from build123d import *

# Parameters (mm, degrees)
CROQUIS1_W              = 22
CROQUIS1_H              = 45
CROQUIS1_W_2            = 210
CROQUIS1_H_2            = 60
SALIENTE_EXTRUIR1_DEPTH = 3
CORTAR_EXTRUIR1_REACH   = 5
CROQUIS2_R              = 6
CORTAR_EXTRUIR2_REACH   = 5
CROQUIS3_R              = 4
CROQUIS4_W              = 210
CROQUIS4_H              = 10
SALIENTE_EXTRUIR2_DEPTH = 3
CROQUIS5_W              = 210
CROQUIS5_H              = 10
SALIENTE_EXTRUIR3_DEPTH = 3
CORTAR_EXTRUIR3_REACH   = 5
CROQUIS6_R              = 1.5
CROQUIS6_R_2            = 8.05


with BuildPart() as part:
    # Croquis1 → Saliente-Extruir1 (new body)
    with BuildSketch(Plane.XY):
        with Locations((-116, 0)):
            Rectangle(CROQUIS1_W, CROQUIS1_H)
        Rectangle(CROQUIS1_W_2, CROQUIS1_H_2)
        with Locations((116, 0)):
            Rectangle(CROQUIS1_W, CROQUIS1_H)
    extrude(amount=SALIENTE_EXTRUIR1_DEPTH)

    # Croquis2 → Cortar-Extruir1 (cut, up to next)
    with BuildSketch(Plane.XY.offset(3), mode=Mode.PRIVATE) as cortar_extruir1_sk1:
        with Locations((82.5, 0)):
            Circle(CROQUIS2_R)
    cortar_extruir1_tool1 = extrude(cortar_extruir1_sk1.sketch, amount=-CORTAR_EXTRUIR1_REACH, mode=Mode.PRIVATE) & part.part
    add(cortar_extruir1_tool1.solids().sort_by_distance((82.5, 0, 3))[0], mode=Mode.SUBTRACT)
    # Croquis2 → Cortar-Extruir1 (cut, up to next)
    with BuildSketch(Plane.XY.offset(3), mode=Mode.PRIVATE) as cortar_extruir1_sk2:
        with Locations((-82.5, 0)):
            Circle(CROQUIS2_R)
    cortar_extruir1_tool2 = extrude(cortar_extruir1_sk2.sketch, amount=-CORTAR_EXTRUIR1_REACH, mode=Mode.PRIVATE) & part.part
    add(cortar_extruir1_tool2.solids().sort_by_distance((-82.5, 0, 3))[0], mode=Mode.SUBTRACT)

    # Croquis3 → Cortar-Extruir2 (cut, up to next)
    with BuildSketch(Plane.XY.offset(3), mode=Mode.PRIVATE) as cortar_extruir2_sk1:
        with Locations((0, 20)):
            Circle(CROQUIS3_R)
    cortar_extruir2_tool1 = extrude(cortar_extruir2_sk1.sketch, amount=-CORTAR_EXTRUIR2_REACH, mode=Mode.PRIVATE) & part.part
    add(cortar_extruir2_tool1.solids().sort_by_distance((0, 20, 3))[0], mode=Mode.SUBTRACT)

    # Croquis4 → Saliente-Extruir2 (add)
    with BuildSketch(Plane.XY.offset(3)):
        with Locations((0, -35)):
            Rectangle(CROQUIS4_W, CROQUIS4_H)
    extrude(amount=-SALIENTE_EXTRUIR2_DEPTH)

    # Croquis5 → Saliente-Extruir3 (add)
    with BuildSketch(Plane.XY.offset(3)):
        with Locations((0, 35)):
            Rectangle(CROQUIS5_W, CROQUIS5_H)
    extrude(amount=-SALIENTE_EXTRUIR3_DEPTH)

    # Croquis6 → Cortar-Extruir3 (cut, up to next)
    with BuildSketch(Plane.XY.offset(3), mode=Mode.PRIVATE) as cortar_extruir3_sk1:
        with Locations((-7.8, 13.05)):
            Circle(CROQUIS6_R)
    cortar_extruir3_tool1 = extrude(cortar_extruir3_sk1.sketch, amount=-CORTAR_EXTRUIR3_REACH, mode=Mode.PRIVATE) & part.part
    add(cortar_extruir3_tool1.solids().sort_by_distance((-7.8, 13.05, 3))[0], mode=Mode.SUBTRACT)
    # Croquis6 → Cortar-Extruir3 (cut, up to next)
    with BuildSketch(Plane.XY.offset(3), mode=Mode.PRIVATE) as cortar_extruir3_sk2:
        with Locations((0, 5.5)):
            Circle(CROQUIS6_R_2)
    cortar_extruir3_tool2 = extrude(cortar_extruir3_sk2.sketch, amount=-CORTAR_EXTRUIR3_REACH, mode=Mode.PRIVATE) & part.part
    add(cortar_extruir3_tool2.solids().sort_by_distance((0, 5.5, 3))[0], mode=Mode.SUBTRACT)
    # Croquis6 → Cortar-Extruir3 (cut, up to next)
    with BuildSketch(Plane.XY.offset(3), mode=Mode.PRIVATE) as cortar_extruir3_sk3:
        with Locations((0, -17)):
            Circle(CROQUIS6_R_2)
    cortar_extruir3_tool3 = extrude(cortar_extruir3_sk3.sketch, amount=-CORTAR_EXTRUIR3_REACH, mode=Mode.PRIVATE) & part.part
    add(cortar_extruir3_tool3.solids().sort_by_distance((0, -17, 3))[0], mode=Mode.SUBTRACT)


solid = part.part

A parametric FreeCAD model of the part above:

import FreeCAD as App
import Part
import Sketcher

V = App.Vector
Q = App.Units.Quantity

doc = App.newDocument("Part")
params = doc.addObject("Spreadsheet::Sheet", "Params")
for row, (alias, value) in enumerate([
    ("sketch1_width", "22 mm"),
    ("sketch1_width2", "210 mm"),
    ("sketch1_height", "45 mm"),
    ("sketch1_height2", "7.5 mm"),
    ("pad1_length", "3 mm"),
    ("sketch2_diameter", "12 mm"),
    ("sketch3_diameter", "12 mm"),
    ("sketch4_diameter", "8 mm"),
    ("sketch5_width", "210 mm"),
    ("sketch5_height", "10 mm"),
    ("pad2_length", "3 mm"),
    ("sketch6_width", "210 mm"),
    ("sketch6_height", "10 mm"),
    ("pad3_length", "3 mm"),
    ("sketch7_diameter", "3 mm"),
    ("sketch8_diameter", "16.1 mm"),
    ("sketch9_diameter", "16.1 mm"),
], start=1):
    params.set(f"A{row}", alias)
    params.set(f"B{row}", "=" + value)
    params.setAlias(f"B{row}", alias)

body = doc.addObject("PartDesign::Body", "Body")

# Sketch on XY plane
sketch1 = body.newObject("Sketcher::SketchObject", "Sketch")
sketch1.AttachmentSupport = (doc.getObject("XY_Plane"), [""])
sketch1.MapMode = "FlatFace"
sketch1.addGeometry([
    Part.LineSegment(V(-127, 22, 0), V(-127, -22, 0)),  # 0
    Part.LineSegment(V(-127, -22, 0), V(-105, -22, 0)),  # 1
    Part.LineSegment(V(-105, -22, 0), V(-105, -30, 0)),  # 2
    Part.LineSegment(V(-105, -30, 0), V(105, -30, 0)),  # 3
    Part.LineSegment(V(105, -30, 0), V(105, -22, 0)),  # 4
    Part.LineSegment(V(105, -22, 0), V(127, -22, 0)),  # 5
    Part.LineSegment(V(127, -22, 0), V(127, 22, 0)),  # 6
    Part.LineSegment(V(127, 22, 0), V(105, 22, 0)),  # 7
    Part.LineSegment(V(105, 22, 0), V(105, 30, 0)),  # 8
    Part.LineSegment(V(105, 30, 0), V(-105, 30, 0)),  # 9
    Part.LineSegment(V(-105, 30, 0), V(-105, 22, 0)),  # 10
    Part.LineSegment(V(-105, 22, 0), V(-127, 22, 0)),  # 11
], False)
sketch1.addConstraint([
    Sketcher.Constraint("Coincident", 0, 2, 1, 1),
    Sketcher.Constraint("Coincident", 1, 2, 2, 1),
    Sketcher.Constraint("Coincident", 2, 2, 3, 1),
    Sketcher.Constraint("Coincident", 3, 2, 4, 1),
    Sketcher.Constraint("Coincident", 4, 2, 5, 1),
    Sketcher.Constraint("Coincident", 5, 2, 6, 1),
    Sketcher.Constraint("Coincident", 6, 2, 7, 1),
    Sketcher.Constraint("Coincident", 7, 2, 8, 1),
    Sketcher.Constraint("Coincident", 8, 2, 9, 1),
    Sketcher.Constraint("Coincident", 9, 2, 10, 1),
    Sketcher.Constraint("Coincident", 10, 2, 11, 1),
    Sketcher.Constraint("Coincident", 11, 2, 0, 1),
    Sketcher.Constraint("Vertical", 0),
    Sketcher.Constraint("Horizontal", 1),
    Sketcher.Constraint("Vertical", 2),
    Sketcher.Constraint("Horizontal", 3),
    Sketcher.Constraint("Vertical", 4),
    Sketcher.Constraint("Horizontal", 5),
    Sketcher.Constraint("Vertical", 6),
    Sketcher.Constraint("Horizontal", 7),
    Sketcher.Constraint("Vertical", 8),
    Sketcher.Constraint("Horizontal", 9),
    Sketcher.Constraint("Vertical", 10),
    Sketcher.Constraint("Horizontal", 11),
    Sketcher.Constraint("Symmetric", 0, 2, 6, 2, -1, 1),
    Sketcher.Constraint("Symmetric", 2, 2, 8, 2, -1, 1),
    Sketcher.Constraint("Symmetric", 4, 2, 10, 2, -1, 1),
    Sketcher.Constraint("Symmetric", 1, 2, 4, 2, -2),
    Sketcher.Constraint("DistanceX", 1, 1, 1, 2, Q("22 mm")),
    Sketcher.Constraint("DistanceX", 3, 1, 3, 2, Q("210 mm")),
    Sketcher.Constraint("DistanceY", 0, 2, 0, 1, Q("45 mm")),
    Sketcher.Constraint("DistanceY", 2, 2, 2, 1, Q("7.5 mm")),
])
sketch1.setExpression("Constraints[28]", "Params.sketch1_width")
sketch1.setExpression("Constraints[29]", "Params.sketch1_width2")
sketch1.setExpression("Constraints[30]", "Params.sketch1_height")
sketch1.setExpression("Constraints[31]", "Params.sketch1_height2")
pad1 = body.newObject("PartDesign::Pad", "Pad")
pad1.Profile = sketch1
pad1.setExpression("Length", "Params.pad1_length")

# Sketch on XY plane
sketch2 = body.newObject("Sketcher::SketchObject", "Sketch001")
sketch2.AttachmentSupport = (doc.getObject("XY_Plane"), [""])
sketch2.MapMode = "FlatFace"
sketch2.AttachmentOffset = App.Placement(V(0, 0, 3), App.Rotation())
sketch2.addGeometry(Part.Circle(V(82, 0, 0), V(0, 0, 1), 6), False)
sketch2.addConstraint([
    Sketcher.Constraint("PointOnObject", 0, 3, -1),
    Sketcher.Constraint("Diameter", 0, Q("12 mm")),
    Sketcher.Constraint("DistanceX", -1, 1, 0, 3, Q("82.5 mm")),
])
sketch2.setExpression("Constraints[1]", "Params.sketch2_diameter")
pocket1 = body.newObject("PartDesign::Pocket", "Pocket")
pocket1.Profile = sketch2
pocket1.Type = "UpToFirst"

# Sketch on XY plane
sketch3 = body.newObject("Sketcher::SketchObject", "Sketch002")
sketch3.AttachmentSupport = (doc.getObject("XY_Plane"), [""])
sketch3.MapMode = "FlatFace"
sketch3.AttachmentOffset = App.Placement(V(0, 0, 3), App.Rotation())
sketch3.addGeometry(Part.Circle(V(-82, 0, 0), V(0, 0, 1), 6), False)
sketch3.addConstraint([
    Sketcher.Constraint("PointOnObject", 0, 3, -1),
    Sketcher.Constraint("Diameter", 0, Q("12 mm")),
    Sketcher.Constraint("DistanceX", 0, 3, -1, 1, Q("82.5 mm")),
])
sketch3.setExpression("Constraints[1]", "Params.sketch3_diameter")
pocket2 = body.newObject("PartDesign::Pocket", "Pocket001")
pocket2.Profile = sketch3
pocket2.Type = "UpToFirst"

# Sketch on XY plane
sketch4 = body.newObject("Sketcher::SketchObject", "Sketch003")
sketch4.AttachmentSupport = (doc.getObject("XY_Plane"), [""])
sketch4.MapMode = "FlatFace"
sketch4.AttachmentOffset = App.Placement(V(0, 0, 3), App.Rotation())
sketch4.addGeometry(Part.Circle(V(0, 20, 0), V(0, 0, 1), 4), False)
sketch4.addConstraint([
    Sketcher.Constraint("PointOnObject", 0, 3, -2),
    Sketcher.Constraint("Diameter", 0, Q("8 mm")),
    Sketcher.Constraint("DistanceY", -1, 1, 0, 3, Q("20 mm")),
])
sketch4.setExpression("Constraints[1]", "Params.sketch4_diameter")
pocket3 = body.newObject("PartDesign::Pocket", "Pocket002")
pocket3.Profile = sketch4
pocket3.Type = "UpToFirst"

# Sketch on XY plane
sketch5 = body.newObject("Sketcher::SketchObject", "Sketch004")
sketch5.AttachmentSupport = (doc.getObject("XY_Plane"), [""])
sketch5.MapMode = "FlatFace"
sketch5.AttachmentOffset = App.Placement(V(0, 0, 3), App.Rotation())
sketch5.addGeometry([
    Part.LineSegment(V(-105, -30, 0), V(-105, -40, 0)),
    Part.LineSegment(V(-105, -40, 0), V(105, -40, 0)),
    Part.LineSegment(V(105, -40, 0), V(105, -30, 0)),
    Part.LineSegment(V(105, -30, 0), V(-105, -30, 0)),
], False)
sketch5.addConstraint([
    Sketcher.Constraint("Coincident", 0, 2, 1, 1),
    Sketcher.Constraint("Coincident", 1, 2, 2, 1),
    Sketcher.Constraint("Coincident", 2, 2, 3, 1),
    Sketcher.Constraint("Coincident", 3, 2, 0, 1),
    Sketcher.Constraint("Vertical", 0),
    Sketcher.Constraint("Horizontal", 1),
    Sketcher.Constraint("Vertical", 2),
    Sketcher.Constraint("Horizontal", 3),
    Sketcher.Constraint("DistanceX", 1, 1, 1, 2, Q("210 mm")),
    Sketcher.Constraint("DistanceY", 0, 2, 0, 1, Q("10 mm")),
    Sketcher.Constraint("DistanceX", 0, 2, -1, 1, Q("105 mm")),
    Sketcher.Constraint("DistanceY", 0, 2, -1, 1, Q("40 mm")),
])
sketch5.setExpression("Constraints[8]", "Params.sketch5_width")
sketch5.setExpression("Constraints[9]", "Params.sketch5_height")
pad2 = body.newObject("PartDesign::Pad", "Pad001")
pad2.Profile = sketch5
pad2.setExpression("Length", "Params.pad2_length")
pad2.Reversed = True

# Sketch on XY plane
sketch6 = body.newObject("Sketcher::SketchObject", "Sketch005")
sketch6.AttachmentSupport = (doc.getObject("XY_Plane"), [""])
sketch6.MapMode = "FlatFace"
sketch6.AttachmentOffset = App.Placement(V(0, 0, 3), App.Rotation())
sketch6.addGeometry([
    Part.LineSegment(V(-105, 40, 0), V(-105, 30, 0)),
    Part.LineSegment(V(-105, 30, 0), V(105, 30, 0)),
    Part.LineSegment(V(105, 30, 0), V(105, 40, 0)),
    Part.LineSegment(V(105, 40, 0), V(-105, 40, 0)),
], False)
sketch6.addConstraint([
    Sketcher.Constraint("Coincident", 0, 2, 1, 1),
    Sketcher.Constraint("Coincident", 1, 2, 2, 1),
    Sketcher.Constraint("Coincident", 2, 2, 3, 1),
    Sketcher.Constraint("Coincident", 3, 2, 0, 1),
    Sketcher.Constraint("Vertical", 0),
    Sketcher.Constraint("Horizontal", 1),
    Sketcher.Constraint("Vertical", 2),
    Sketcher.Constraint("Horizontal", 3),
    Sketcher.Constraint("DistanceX", 1, 1, 1, 2, Q("210 mm")),
    Sketcher.Constraint("DistanceY", 0, 2, 0, 1, Q("10 mm")),
    Sketcher.Constraint("DistanceX", 0, 2, -1, 1, Q("105 mm")),
    Sketcher.Constraint("DistanceY", -1, 1, 0, 2, Q("30 mm")),
])
sketch6.setExpression("Constraints[8]", "Params.sketch6_width")
sketch6.setExpression("Constraints[9]", "Params.sketch6_height")
pad3 = body.newObject("PartDesign::Pad", "Pad002")
pad3.Profile = sketch6
pad3.setExpression("Length", "Params.pad3_length")
pad3.Reversed = True

# Sketch on XY plane
sketch7 = body.newObject("Sketcher::SketchObject", "Sketch006")
sketch7.AttachmentSupport = (doc.getObject("XY_Plane"), [""])
sketch7.MapMode = "FlatFace"
sketch7.AttachmentOffset = App.Placement(V(0, 0, 3), App.Rotation())
sketch7.addGeometry(Part.Circle(V(-7.8, 13.1, 0), V(0, 0, 1), 1.5), False)
sketch7.addConstraint([
    Sketcher.Constraint("Diameter", 0, Q("3 mm")),
    Sketcher.Constraint("DistanceX", 0, 3, -1, 1, Q("7.8 mm")),
    Sketcher.Constraint("DistanceY", -1, 1, 0, 3, Q("13.05 mm")),
])
sketch7.setExpression("Constraints[0]", "Params.sketch7_diameter")
pocket4 = body.newObject("PartDesign::Pocket", "Pocket003")
pocket4.Profile = sketch7
pocket4.Type = "UpToFirst"

# Sketch on XY plane
sketch8 = body.newObject("Sketcher::SketchObject", "Sketch007")
sketch8.AttachmentSupport = (doc.getObject("XY_Plane"), [""])
sketch8.MapMode = "FlatFace"
sketch8.AttachmentOffset = App.Placement(V(0, 0, 3), App.Rotation())
sketch8.addGeometry(Part.Circle(V(0, 6, 0), V(0, 0, 1), 8), False)
sketch8.addConstraint([
    Sketcher.Constraint("PointOnObject", 0, 3, -2),
    Sketcher.Constraint("Diameter", 0, Q("16.1 mm")),
    Sketcher.Constraint("DistanceY", -1, 1, 0, 3, Q("5.5 mm")),
])
sketch8.setExpression("Constraints[1]", "Params.sketch8_diameter")
pocket5 = body.newObject("PartDesign::Pocket", "Pocket004")
pocket5.Profile = sketch8
pocket5.Type = "UpToFirst"

# Sketch on XY plane
sketch9 = body.newObject("Sketcher::SketchObject", "Sketch008")
sketch9.AttachmentSupport = (doc.getObject("XY_Plane"), [""])
sketch9.MapMode = "FlatFace"
sketch9.AttachmentOffset = App.Placement(V(0, 0, 3), App.Rotation())
sketch9.addGeometry(Part.Circle(V(0, -17, 0), V(0, 0, 1), 8), False)
sketch9.addConstraint([
    Sketcher.Constraint("PointOnObject", 0, 3, -2),
    Sketcher.Constraint("Diameter", 0, Q("16.1 mm")),
    Sketcher.Constraint("DistanceY", 0, 3, -1, 1, Q("17 mm")),
])
sketch9.setExpression("Constraints[1]", "Params.sketch9_diameter")
pocket6 = body.newObject("PartDesign::Pocket", "Pocket005")
pocket6.Profile = sketch9
pocket6.Type = "UpToFirst"

doc.recompute()
